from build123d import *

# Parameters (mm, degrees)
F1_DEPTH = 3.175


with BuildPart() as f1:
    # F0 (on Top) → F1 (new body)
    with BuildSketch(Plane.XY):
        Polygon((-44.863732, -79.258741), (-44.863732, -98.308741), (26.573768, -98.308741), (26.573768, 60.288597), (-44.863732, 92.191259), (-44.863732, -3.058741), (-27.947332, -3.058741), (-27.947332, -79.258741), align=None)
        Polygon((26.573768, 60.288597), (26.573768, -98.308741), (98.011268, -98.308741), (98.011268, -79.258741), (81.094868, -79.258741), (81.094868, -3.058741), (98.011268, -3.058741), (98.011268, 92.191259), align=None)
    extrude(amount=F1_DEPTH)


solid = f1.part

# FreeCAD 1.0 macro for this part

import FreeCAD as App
import Part
import Sketcher
from FreeCAD import Vector
Q = App.Units.Quantity

doc = App.newDocument("Part")
body = doc.addObject("PartDesign::Body", "Body")

# Sketch on XY plane
sketch1 = doc.addObject("Sketcher::SketchObject", "Sketch")
body.addObject(sketch1)
sketch1.AttachmentSupport = (doc.XY_Plane, [""])
sketch1.MapMode = "FlatFace"
sketch1.addGeometry(Part.LineSegment(Vector(-44.863732, -79.258741, 0), Vector(-44.863732, -98.308741, 0)), False)
sketch1.addGeometry(Part.LineSegment(Vector(-44.863732, -98.308741, 0), Vector(98.011268, -98.308741, 0)), False)
sketch1.addGeometry(Part.LineSegment(Vector(98.011268, -98.308741, 0), Vector(98.011268, -79.258741, 0)), False)
sketch1.addGeometry(Part.LineSegment(Vector(98.011268, -79.258741, 0), Vector(81.094868, -79.258741, 0)), False)
sketch1.addGeometry(Part.LineSegment(Vector(81.094868, -79.258741, 0), Vector(81.094868, -3.058741, 0)), False)
sketch1.addGeometry(Part.LineSegment(Vector(81.094868, -3.058741, 0), Vector(98.011268, -3.058741, 0)), False)
sketch1.addGeometry(Part.LineSegment(Vector(98.011268, -3.058741, 0), Vector(98.011268, 92.191259, 0)), False)
sketch1.addGeometry(Part.LineSegment(Vector(98.011268, 92.191259, 0), Vector(26.573768, 60.288597, 0)), False)
sketch1.addGeometry(Part.LineSegment(Vector(26.573768, 60.288597, 0), Vector(-44.863732, 92.191259, 0)), False)
sketch1.addGeometry(Part.LineSegment(Vector(-44.863732, 92.191259, 0), Vector(-44.863732, -3.058741, 0)), False)
sketch1.addGeometry(Part.LineSegment(Vector(-44.863732, -3.058741, 0), Vector(-27.947332, -3.058741, 0)), False)
sketch1.addGeometry(Part.LineSegment(Vector(-27.947332, -3.058741, 0), Vector(-27.947332, -79.258741, 0)), False)
sketch1.addGeometry(Part.LineSegment(Vector(-27.947332, -79.258741, 0), Vector(-44.863732, -79.258741, 0)), False)
sketch1.addConstraint(Sketcher.Constraint("Coincident", 0, 2, 1, 1))
sketch1.addConstraint(Sketcher.Constraint("Coincident", 1, 2, 2, 1))
sketch1.addConstraint(Sketcher.Constraint("Coincident", 2, 2, 3, 1))
sketch1.addConstraint(Sketcher.Constraint("Coincident", 3, 2, 4, 1))
sketch1.addConstraint(Sketcher.Constraint("Coincident", 4, 2, 5, 1))
sketch1.addConstraint(Sketcher.Constraint("Coincident", 5, 2, 6, 1))
sketch1.addConstraint(Sketcher.Constraint("Coincident", 6, 2, 7, 1))
sketch1.addConstraint(Sketcher.Constraint("Coincident", 7, 2, 8, 1))
sketch1.addConstraint(Sketcher.Constraint("Coincident", 8, 2, 9, 1))
sketch1.addConstraint(Sketcher.Constraint("Coincident", 9, 2, 10, 1))
sketch1.addConstraint(Sketcher.Constraint("Coincident", 10, 2, 11, 1))
sketch1.addConstraint(Sketcher.Constraint("Coincident", 11, 2, 12, 1))
sketch1.addConstraint(Sketcher.Constraint("Coincident", 12, 2, 0, 1))
sketch1.addConstraint(Sketcher.Constraint("Vertical", 0))
sketch1.addConstraint(Sketcher.Constraint("Horizontal", 1))
sketch1.addConstraint(Sketcher.Constraint("Vertical", 2))
sketch1.addConstraint(Sketcher.Constraint("Horizontal", 3))
sketch1.addConstraint(Sketcher.Constraint("Vertical", 4))
sketch1.addConstraint(Sketcher.Constraint("Horizontal", 5))
sketch1.addConstraint(Sketcher.Constraint("Vertical", 6))
sketch1.addConstraint(Sketcher.Constraint("Vertical", 9))
sketch1.addConstraint(Sketcher.Constraint("Horizontal", 10))
sketch1.addConstraint(Sketcher.Constraint("Vertical", 11))
sketch1.addConstraint(Sketcher.Constraint("Horizontal", 12))
sketch1.addConstraint(Sketcher.Constraint("Horizontal", 6, 2, 8, 2))
sketch1.addConstraint(Sketcher.Constraint("Horizontal", 5, 2, 9, 2))
sketch1.addConstraint(Sketcher.Constraint("Horizontal", 3, 2, 11, 2))
sketch1.addConstraint(Sketcher.Constraint("Vertical", 2, 2, 5, 2))
sketch1.addConstraint(Sketcher.Constraint("Vertical", 0, 2, 8, 2))
sketch1.addConstraint(Sketcher.Constraint("Equal", 5, 10))
sketch1.addConstraint(Sketcher.Constraint("Equal", 7, 8))
sketch1.addConstraint(Sketcher.Constraint("DistanceY", 4, 1, 4, 2, Q("3 in")))
sketch1.addConstraint(Sketcher.Constraint("DistanceY", 0, 2, 0, 1, Q("0.75 in")))
sketch1.addConstraint(Sketcher.Constraint("DistanceY", 6, 1, 6, 2, Q("3.75 in")))
sketch1.addConstraint(Sketcher.Constraint("DistanceX", 1, 1, 1, 2, Q("5.625 in")))
sketch1.addConstraint(Sketcher.Constraint("DistanceX", 3, 2, 3, 1, Q("0.666 in")))
sketch1.addConstraint(Sketcher.Constraint("DistanceY", 0, 2, -1, 1, Q("98.308741 mm")))
sketch1.addConstraint(Sketcher.Constraint("DistanceX", -1, 1, 1, 2, Q("98.011268 mm")))
sketch1.addConstraint(Sketcher.Constraint("DistanceY", 7, 2, 6, 2, Q("31.902662 mm")))
pad1 = doc.addObject("PartDesign::Pad", "Pad")
body.addObject(pad1)
pad1.Profile = sketch1
pad1.Length = Q("0.125 in")

doc.recompute()
